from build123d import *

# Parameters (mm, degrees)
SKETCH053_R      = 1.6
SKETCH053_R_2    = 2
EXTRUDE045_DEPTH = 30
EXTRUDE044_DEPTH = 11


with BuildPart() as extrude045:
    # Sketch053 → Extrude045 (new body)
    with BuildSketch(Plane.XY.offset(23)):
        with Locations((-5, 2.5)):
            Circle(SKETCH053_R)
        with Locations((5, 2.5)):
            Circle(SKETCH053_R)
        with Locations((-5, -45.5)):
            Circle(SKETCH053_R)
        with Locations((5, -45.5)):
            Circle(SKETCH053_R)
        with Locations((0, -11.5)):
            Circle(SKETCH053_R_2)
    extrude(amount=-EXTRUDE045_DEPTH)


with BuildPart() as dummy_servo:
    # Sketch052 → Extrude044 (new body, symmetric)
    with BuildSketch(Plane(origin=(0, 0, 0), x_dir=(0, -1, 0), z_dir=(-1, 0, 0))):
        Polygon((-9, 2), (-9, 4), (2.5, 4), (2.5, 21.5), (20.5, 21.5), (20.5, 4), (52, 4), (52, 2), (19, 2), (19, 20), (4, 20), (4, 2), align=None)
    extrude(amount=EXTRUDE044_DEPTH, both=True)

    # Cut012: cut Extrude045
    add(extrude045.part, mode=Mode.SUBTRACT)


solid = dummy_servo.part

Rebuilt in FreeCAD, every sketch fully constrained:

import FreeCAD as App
import Part
import Sketcher

V = App.Vector
Q = App.Units.Quantity

doc = App.newDocument("Part")
body = doc.addObject("PartDesign::Body", "Body")
body.AllowCompound = True

# Sketch on XY plane
sketch1 = body.newObject("Sketcher::SketchObject", "Sketch")
sketch1.AttachmentSupport = (doc.getObject("XY_Plane"), [""])
sketch1.MapMode = "FlatFace"
sketch1.AttachmentOffset = App.Placement(V(0, 0, 23), App.Rotation())
sketch1.addGeometry([
    Part.Circle(V(-5, 2.5, 0), V(0, 0, 1), 1.6),  # 0
    Part.Circle(V(5, 2.5, 0), V(0, 0, 1), 1.6),  # 1
    Part.Circle(V(-5, -45.5, 0), V(0, 0, 1), 1.6),  # 2
    Part.Circle(V(5, -45.5, 0), V(0, 0, 1), 1.6),  # 3
    Part.Circle(V(0, -11.5, 0), V(0, 0, 1), 2),  # 4
], False)
sketch1.addConstraint([
    Sketcher.Constraint("Equal", 0, 1),
    Sketcher.Constraint("Equal", 1, 2),
    Sketcher.Constraint("Equal", 2, 3),
    Sketcher.Constraint("Symmetric", 0, 3, 1, 3, -2),
    Sketcher.Constraint("Symmetric", 2, 3, 3, 3, -2),
    Sketcher.Constraint("PointOnObject", 4, 3, -2),
    Sketcher.Constraint("Vertical", 0, 3, 2, 3),
    Sketcher.Constraint("Diameter", 4, Q("4 mm")),
    Sketcher.Constraint("Diameter", 0, Q("3.2 mm")),
    Sketcher.Constraint("DistanceX", 0, 3, -1, 1, Q("5 mm")),
    Sketcher.Constraint("DistanceY", 2, 3, 0, 3, Q("48 mm")),
    Sketcher.Constraint("DistanceY", 4, 3, 0, 3, Q("14 mm")),
    Sketcher.Constraint("DistanceY", -1, 1, 0, 3, Q("2.5 mm")),
])
pad1 = body.newObject("PartDesign::Pad", "Pad")
pad1.Profile = sketch1
pad1.Length = 30
pad1.Reversed = True
body2 = doc.addObject("PartDesign::Body", "Body001")

# Sketch on YZ plane
sketch2 = body2.newObject("Sketcher::SketchObject", "Sketch001")
sketch2.AttachmentSupport = (doc.getObject("YZ_Plane001"), [""])
sketch2.MapMode = "FlatFace"
sketch2.addGeometry([
    Part.LineSegment(V(9, 4, 0), V(9, 2, 0)),  # 0
    Part.LineSegment(V(9, 2, 0), V(-4, 2, 0)),  # 1
    Part.LineSegment(V(-4, 2, 0), V(-4, 20, 0)),  # 2
    Part.LineSegment(V(-4, 20, 0), V(-19, 20, 0)),  # 3
    Part.LineSegment(V(-19, 20, 0), V(-19, 2, 0)),  # 4
    Part.LineSegment(V(-19, 2, 0), V(-52, 2, 0)),  # 5
    Part.LineSegment(V(-52, 2, 0), V(-52, 4, 0)),  # 6
    Part.LineSegment(V(-52, 4, 0), V(-20.5, 4, 0)),  # 7
    Part.LineSegment(V(-20.5, 4, 0), V(-20.5, 21.5, 0)),  # 8
    Part.LineSegment(V(-20.5, 21.5, 0), V(-2.5, 21.5, 0)),  # 9
    Part.LineSegment(V(-2.5, 21.5, 0), V(-2.5, 4, 0)),  # 10
    Part.LineSegment(V(-2.5, 4, 0), V(9, 4, 0)),  # 11
], False)
sketch2.addConstraint([
    Sketcher.Constraint("Coincident", 0, 2, 1, 1),
    Sketcher.Constraint("Coincident", 1, 2, 2, 1),
    Sketcher.Constraint("Coincident", 2, 2, 3, 1),
    Sketcher.Constraint("Coincident", 3, 2, 4, 1),
    Sketcher.Constraint("Coincident", 4, 2, 5, 1),
    Sketcher.Constraint("Coincident", 5, 2, 6, 1),
    Sketcher.Constraint("Coincident", 6, 2, 7, 1),
    Sketcher.Constraint("Coincident", 7, 2, 8, 1),
    Sketcher.Constraint("Coincident", 8, 2, 9, 1),
    Sketcher.Constraint("Coincident", 9, 2, 10, 1),
    Sketcher.Constraint("Coincident", 10, 2, 11, 1),
    Sketcher.Constraint("Coincident", 11, 2, 0, 1),
    Sketcher.Constraint("Vertical", 0),
    Sketcher.Constraint("Horizontal", 1),
    Sketcher.Constraint("Vertical", 2),
    Sketcher.Constraint("Horizontal", 3),
    Sketcher.Constraint("Vertical", 4),
    Sketcher.Constraint("Horizontal", 5),
    Sketcher.Constraint("Vertical", 6),
    Sketcher.Constraint("Horizontal", 7),
    Sketcher.Constraint("Vertical", 8),
    Sketcher.Constraint("Horizontal", 9),
    Sketcher.Constraint("Vertical", 10),
    Sketcher.Constraint("Horizontal", 11),
    Sketcher.Constraint("Horizontal", 1, 2, 4, 2),
    Sketcher.Constraint("Horizontal", 7, 2, 10, 2),
    Sketcher.Constraint("Equal", 9, 2),
    Sketcher.Constraint("DistanceX", 1, 2, 1, 1, Q("13 mm")),
    Sketcher.Constraint("DistanceX", 3, 2, 3, 1, Q("15 mm")),
    Sketcher.Constraint("DistanceX", 5, 2, 5, 1, Q("33 mm")),
    Sketcher.Constraint("DistanceX", 9, 1, 9, 2, Q("18 mm")),
    Sketcher.Constraint("DistanceY", 0, 2, 0, 1, Q("2 mm")),
    Sketcher.Constraint("DistanceX", 7, 1, 7, 2, Q("31.5 mm")),
    Sketcher.Constraint("DistanceY", 8, 1, 8, 2, Q("17.5 mm")),
    Sketcher.Constraint("DistanceX", -1, 1, 0, 2, Q("9 mm")),
    Sketcher.Constraint("DistanceY", -1, 1, 0, 2, Q("2 mm")),
])
pad2 = body2.newObject("PartDesign::Pad", "Pad001")
pad2.Profile = sketch2
pad2.Length = 22
pad2.Midplane = True
doc.recompute()

boolean = body2.newObject("PartDesign::Boolean", "Boolean")
boolean.Type = "Cut"
boolean.addObjects([body])

doc.recompute()
